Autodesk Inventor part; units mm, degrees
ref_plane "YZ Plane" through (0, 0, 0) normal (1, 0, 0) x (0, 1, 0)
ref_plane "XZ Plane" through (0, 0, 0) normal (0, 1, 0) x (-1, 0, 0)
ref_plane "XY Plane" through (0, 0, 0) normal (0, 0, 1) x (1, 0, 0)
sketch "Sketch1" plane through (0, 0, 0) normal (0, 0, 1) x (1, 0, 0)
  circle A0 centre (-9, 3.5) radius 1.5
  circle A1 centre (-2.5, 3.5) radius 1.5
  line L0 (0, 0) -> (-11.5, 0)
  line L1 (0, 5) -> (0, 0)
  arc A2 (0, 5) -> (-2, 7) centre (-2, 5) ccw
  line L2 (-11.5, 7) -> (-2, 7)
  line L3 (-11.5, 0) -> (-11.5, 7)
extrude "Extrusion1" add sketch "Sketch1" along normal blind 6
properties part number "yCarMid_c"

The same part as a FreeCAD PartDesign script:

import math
import FreeCAD as App
import Part
import Sketcher

V = App.Vector

doc = App.newDocument("Part")
body = doc.addObject("PartDesign::Body", "Body")

# Sketch on XY plane
sketch1 = body.newObject("Sketcher::SketchObject", "Sketch")
sketch1.AttachmentSupport = (doc.getObject("XY_Plane"), [""])
sketch1.MapMode = "FlatFace"
sketch1.addGeometry([
    Part.LineSegment(V(-11.5, 0, 0), V(0, 0, 0)),  # 0
    Part.LineSegment(V(0, 0, 0), V(0, 5, 0)),  # 1
    Part.ArcOfCircle(Part.Circle(V(-2, 5, 0), V(0, 0, 1), 2), math.radians(0), math.radians(90)),  # 2
    Part.LineSegment(V(-2, 7, 0), V(-11.5, 7, 0)),  # 3
    Part.LineSegment(V(-11.5, 7, 0), V(-11.5, 0, 0)),  # 4
    Part.Circle(V(-9, 3.5, 0), V(0, 0, 1), 1.5),  # 5
    Part.Circle(V(-2.5, 3.5, 0), V(0, 0, 1), 1.5),  # 6
], False)
sketch1.addConstraint([
    Sketcher.Constraint("Coincident", 0, 2, 1, 1),
    Sketcher.Constraint("Tangent", 1, 2, 2, 1),
    Sketcher.Constraint("Tangent", 2, 2, 3, 1),
    Sketcher.Constraint("Coincident", 3, 2, 4, 1),
    Sketcher.Constraint("Coincident", 4, 2, 0, 1),
    Sketcher.Constraint("Horizontal", 0),
    Sketcher.Constraint("Vertical", 1),
    Sketcher.Constraint("Horizontal", 3),
    Sketcher.Constraint("Vertical", 4),
    Sketcher.Constraint("Coincident", 0, 2, -1, 1),
    Sketcher.Constraint("Equal", 5, 6),
    Sketcher.Constraint("Horizontal", 5, 3, 6, 3),
    Sketcher.Constraint("Diameter", 5, 3.0),
    Sketcher.Constraint("Radius", 2, 2.0),
    Sketcher.Constraint("DistanceY", 1, 1, 1, 2, 5.0),
    Sketcher.Constraint("DistanceX", 0, 1, 0, 2, 11.5),
    Sketcher.Constraint("DistanceX", 5, 3, -1, 1, 9.0),
    Sketcher.Constraint("DistanceX", 3, 2, 6, 3, 9.0),
    Sketcher.Constraint("DistanceY", -1, 1, 5, 3, 3.5),
])
pad1 = body.newObject("PartDesign::Pad", "Pad")
pad1.Profile = sketch1
pad1.Length = 6

doc.recompute()
